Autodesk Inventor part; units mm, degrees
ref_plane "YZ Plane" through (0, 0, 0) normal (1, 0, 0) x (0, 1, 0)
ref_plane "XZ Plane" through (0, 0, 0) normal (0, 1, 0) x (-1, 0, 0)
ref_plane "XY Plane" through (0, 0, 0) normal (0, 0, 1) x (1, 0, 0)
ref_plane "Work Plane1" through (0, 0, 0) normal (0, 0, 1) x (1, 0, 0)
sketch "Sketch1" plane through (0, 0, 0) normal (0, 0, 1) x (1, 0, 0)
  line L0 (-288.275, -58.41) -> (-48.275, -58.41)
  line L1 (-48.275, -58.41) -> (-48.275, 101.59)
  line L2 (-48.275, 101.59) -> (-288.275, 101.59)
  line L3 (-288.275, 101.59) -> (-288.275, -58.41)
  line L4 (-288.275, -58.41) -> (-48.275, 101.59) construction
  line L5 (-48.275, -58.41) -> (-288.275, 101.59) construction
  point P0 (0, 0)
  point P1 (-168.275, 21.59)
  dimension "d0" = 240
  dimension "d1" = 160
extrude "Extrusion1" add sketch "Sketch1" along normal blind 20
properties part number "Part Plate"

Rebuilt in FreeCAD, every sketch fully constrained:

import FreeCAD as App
import Part
import Sketcher
Q = App.Units.Quantity

doc = App.newDocument("Part")
body = doc.addObject("PartDesign::Body", "Body")

sketch1 = body.newObject("Sketcher::SketchObject", "Sketch")
sketch1.AttachmentSupport = (doc.getObject("XY_Plane"), [""])
sketch1.MapMode = "FlatFace"
sketch1.addGeometry(Part.LineSegment(App.Vector(-288, 102, 0), App.Vector(-288, -58, 0)), False)
sketch1.addGeometry(Part.LineSegment(App.Vector(-288, -58, 0), App.Vector(-48, -58, 0)), False)
sketch1.addGeometry(Part.LineSegment(App.Vector(-48, -58, 0), App.Vector(-48, 102, 0)), False)
sketch1.addGeometry(Part.LineSegment(App.Vector(-48, 102, 0), App.Vector(-288, 102, 0)), False)
sketch1.addConstraint(Sketcher.Constraint("Coincident", 0, 2, 1, 1))
sketch1.addConstraint(Sketcher.Constraint("Coincident", 1, 2, 2, 1))
sketch1.addConstraint(Sketcher.Constraint("Coincident", 2, 2, 3, 1))
sketch1.addConstraint(Sketcher.Constraint("Coincident", 3, 2, 0, 1))
sketch1.addConstraint(Sketcher.Constraint("Vertical", 0))
sketch1.addConstraint(Sketcher.Constraint("Horizontal", 1))
sketch1.addConstraint(Sketcher.Constraint("Vertical", 2))
sketch1.addConstraint(Sketcher.Constraint("Horizontal", 3))
sketch1.addConstraint(Sketcher.Constraint("DistanceX", 1, 1, 1, 2, Q("240 mm")))
sketch1.addConstraint(Sketcher.Constraint("DistanceY", 0, 2, 0, 1, Q("160 mm")))
sketch1.addConstraint(Sketcher.Constraint("DistanceY", 0, 2, -1, 1, Q("58.41 mm")))
sketch1.addConstraint(Sketcher.Constraint("DistanceX", 0, 2, -1, 1, Q("288.275 mm")))
pad1 = body.newObject("PartDesign::Pad", "Pad")
pad1.Profile = sketch1
pad1.Length = 20

doc.recompute()
